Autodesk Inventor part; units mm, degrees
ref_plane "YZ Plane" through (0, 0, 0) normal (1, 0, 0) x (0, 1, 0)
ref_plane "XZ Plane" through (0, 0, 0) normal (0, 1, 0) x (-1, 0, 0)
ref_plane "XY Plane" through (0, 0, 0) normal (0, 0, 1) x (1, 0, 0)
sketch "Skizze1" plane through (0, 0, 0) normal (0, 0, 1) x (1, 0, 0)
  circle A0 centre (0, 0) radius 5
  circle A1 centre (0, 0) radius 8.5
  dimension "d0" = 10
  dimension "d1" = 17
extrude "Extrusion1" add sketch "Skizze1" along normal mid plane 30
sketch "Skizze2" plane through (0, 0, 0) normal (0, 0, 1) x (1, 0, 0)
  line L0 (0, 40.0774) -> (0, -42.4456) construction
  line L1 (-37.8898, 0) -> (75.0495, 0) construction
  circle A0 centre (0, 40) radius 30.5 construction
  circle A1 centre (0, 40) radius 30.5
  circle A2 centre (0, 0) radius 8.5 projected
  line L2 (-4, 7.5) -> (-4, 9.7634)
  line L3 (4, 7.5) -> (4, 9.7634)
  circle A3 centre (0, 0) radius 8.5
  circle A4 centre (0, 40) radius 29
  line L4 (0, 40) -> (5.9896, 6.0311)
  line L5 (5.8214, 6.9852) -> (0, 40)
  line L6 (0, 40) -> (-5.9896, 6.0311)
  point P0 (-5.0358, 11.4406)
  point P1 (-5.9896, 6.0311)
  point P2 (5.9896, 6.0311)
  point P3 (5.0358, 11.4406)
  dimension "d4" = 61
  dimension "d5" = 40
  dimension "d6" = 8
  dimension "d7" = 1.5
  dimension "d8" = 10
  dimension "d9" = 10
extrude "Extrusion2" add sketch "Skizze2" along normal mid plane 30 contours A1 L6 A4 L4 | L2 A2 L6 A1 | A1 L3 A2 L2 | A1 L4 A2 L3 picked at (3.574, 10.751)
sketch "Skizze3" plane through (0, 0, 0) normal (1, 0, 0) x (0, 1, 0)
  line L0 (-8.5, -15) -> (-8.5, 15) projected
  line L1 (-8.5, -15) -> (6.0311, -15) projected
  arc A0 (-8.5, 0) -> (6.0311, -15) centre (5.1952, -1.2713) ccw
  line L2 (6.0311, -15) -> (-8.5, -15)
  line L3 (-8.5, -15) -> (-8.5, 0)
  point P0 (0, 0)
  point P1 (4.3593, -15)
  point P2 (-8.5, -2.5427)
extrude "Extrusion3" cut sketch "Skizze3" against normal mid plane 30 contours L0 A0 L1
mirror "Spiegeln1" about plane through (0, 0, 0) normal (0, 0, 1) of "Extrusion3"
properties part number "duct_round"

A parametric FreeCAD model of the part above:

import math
import FreeCAD as App
import Part
import Sketcher
from FreeCAD import Vector
Q = App.Units.Quantity

doc = App.newDocument("Part")
params = doc.addObject("Spreadsheet::Sheet", "Params")
for row, (alias, value) in enumerate([
    ("sketch1_diameter", "17 mm"),
    ("sketch1_diameter2", "10 mm"),
    ("pad1_length", "30 mm"),
    ("sketch2_radius", "29 mm"),
    ("sketch2_radius2", "8.5 mm"),
    ("pad2_length", "30 mm"),
    ("pocket1_length", "30 mm"),
], start=1):
    params.set(f"A{row}", alias)
    params.set(f"B{row}", "=" + value)
    params.setAlias(f"B{row}", alias)

body = doc.addObject("PartDesign::Body", "Body")

# Sketch on XY plane
sketch1 = doc.addObject("Sketcher::SketchObject", "Sketch")
body.addObject(sketch1)
sketch1.AttachmentSupport = (doc.XY_Plane, [""])
sketch1.MapMode = "FlatFace"
sketch1.addGeometry([
    Part.Circle(Vector(0, 0, 0), Vector(0, 0, 1), 8),
    Part.Circle(Vector(0, 0, 0), Vector(0, 0, 1), 5),
], False)
sketch1.addConstraint([
    Sketcher.Constraint("Coincident", 0, 3, -1, 1),
    Sketcher.Constraint("Coincident", 1, 3, -1, 1),
    Sketcher.Constraint("Diameter", 0, 17.0),
    Sketcher.Constraint("Diameter", 1, 10.0),
])
sketch1.setExpression("Constraints[2]", "Params.sketch1_diameter")
sketch1.setExpression("Constraints[3]", "Params.sketch1_diameter2")
pad1 = doc.addObject("PartDesign::Pad", "Pad")
body.addObject(pad1)
pad1.Profile = sketch1
pad1.setExpression("Length", "Params.pad1_length")
pad1.Midplane = True

# Sketch on XY plane
sketch2 = doc.addObject("Sketcher::SketchObject", "Sketch001")
body.addObject(sketch2)
sketch2.AttachmentSupport = (doc.XY_Plane, [""])
sketch2.MapMode = "FlatFace"
sketch2.addGeometry([
    Part.LineSegment(Vector(-5, 11, 0), Vector(-6, 6, 0)),
    Part.ArcOfCircle(Part.Circle(Vector(0, 0, 0), Vector(0, 0, 1), 8), math.radians(45), math.radians(135)),
    Part.LineSegment(Vector(6, 6, 0), Vector(5, 11, 0)),
    Part.ArcOfCircle(Part.Circle(Vector(0, 40, 0), Vector(0, 0, 1), 29), math.radians(-100), math.radians(-80)),
], False)
sketch2.addConstraint([
    Sketcher.Constraint("Coincident", 0, 2, 1, 2),
    Sketcher.Constraint("Coincident", 1, 1, 2, 1),
    Sketcher.Constraint("Coincident", 2, 2, 3, 2),
    Sketcher.Constraint("Coincident", 3, 1, 0, 1),
    Sketcher.Constraint("Coincident", 1, 3, -1, 1),
    Sketcher.Constraint("Symmetric", 2, 2, 3, 1, -2),
    Sketcher.Constraint("Horizontal", 0, 2, 1, 1),
    Sketcher.Constraint("DistanceY", -1, 1, 3, 3, 40.0),
    Sketcher.Constraint("Radius", 3, 29.0),
    Sketcher.Constraint("Radius", 1, 8.5),
    Sketcher.Constraint("Angle", 0, Q("-100 deg")),
    Sketcher.Constraint("Distance", 0, 5.493),
])
sketch2.setExpression("Constraints[8]", "Params.sketch2_radius")
sketch2.setExpression("Constraints[9]", "Params.sketch2_radius2")
pad2 = doc.addObject("PartDesign::Pad", "Pad001")
body.addObject(pad2)
pad2.Profile = sketch2
pad2.setExpression("Length", "Params.pad2_length")
pad2.Midplane = True

# Sketch on YZ plane
sketch3 = doc.addObject("Sketcher::SketchObject", "Sketch002")
body.addObject(sketch3)
sketch3.AttachmentSupport = (doc.YZ_Plane, [""])
sketch3.MapMode = "FlatFace"
sketch3.addGeometry([
    Part.LineSegment(Vector(-8, -3, 0), Vector(-8, -15, 0)),
    Part.LineSegment(Vector(-8, -15, 0), Vector(4, -15, 0)),
    Part.ArcOfCircle(Part.Circle(Vector(5, -1, 0), Vector(0, 0, 1), 14), math.radians(-175), math.radians(-93)),
], False)
sketch3.addConstraint([
    Sketcher.Constraint("Coincident", 0, 2, 1, 1),
    Sketcher.Constraint("Coincident", 1, 2, 2, 2),
    Sketcher.Constraint("Coincident", 2, 1, 0, 1),
    Sketcher.Constraint("Vertical", 0),
    Sketcher.Constraint("Horizontal", 1),
    Sketcher.Constraint("DistanceY", 0, 2, -1, 1, 15.0),
    Sketcher.Constraint("Radius", 2, 13.754),
    Sketcher.Constraint("DistanceX", 0, 2, -1, 1, 8.5),
    Sketcher.Constraint("DistanceX", 1, 1, 1, 2, 12.8594),
    Sketcher.Constraint("DistanceY", 0, 2, 0, 1, 12.4574),
])
pocket1 = doc.addObject("PartDesign::Pocket", "Pocket")
body.addObject(pocket1)
pocket1.Profile = sketch3
pocket1.setExpression("Length", "Params.pocket1_length")
pocket1.Midplane = True
doc.recompute()

mirrored = doc.addObject("PartDesign::Mirrored", "Mirrored")
body.addObject(mirrored)
mirrored.Originals = [pocket1]
mirrored.MirrorPlane = (doc.XY_Plane, [""])
body.Tip = mirrored

doc.recompute()
